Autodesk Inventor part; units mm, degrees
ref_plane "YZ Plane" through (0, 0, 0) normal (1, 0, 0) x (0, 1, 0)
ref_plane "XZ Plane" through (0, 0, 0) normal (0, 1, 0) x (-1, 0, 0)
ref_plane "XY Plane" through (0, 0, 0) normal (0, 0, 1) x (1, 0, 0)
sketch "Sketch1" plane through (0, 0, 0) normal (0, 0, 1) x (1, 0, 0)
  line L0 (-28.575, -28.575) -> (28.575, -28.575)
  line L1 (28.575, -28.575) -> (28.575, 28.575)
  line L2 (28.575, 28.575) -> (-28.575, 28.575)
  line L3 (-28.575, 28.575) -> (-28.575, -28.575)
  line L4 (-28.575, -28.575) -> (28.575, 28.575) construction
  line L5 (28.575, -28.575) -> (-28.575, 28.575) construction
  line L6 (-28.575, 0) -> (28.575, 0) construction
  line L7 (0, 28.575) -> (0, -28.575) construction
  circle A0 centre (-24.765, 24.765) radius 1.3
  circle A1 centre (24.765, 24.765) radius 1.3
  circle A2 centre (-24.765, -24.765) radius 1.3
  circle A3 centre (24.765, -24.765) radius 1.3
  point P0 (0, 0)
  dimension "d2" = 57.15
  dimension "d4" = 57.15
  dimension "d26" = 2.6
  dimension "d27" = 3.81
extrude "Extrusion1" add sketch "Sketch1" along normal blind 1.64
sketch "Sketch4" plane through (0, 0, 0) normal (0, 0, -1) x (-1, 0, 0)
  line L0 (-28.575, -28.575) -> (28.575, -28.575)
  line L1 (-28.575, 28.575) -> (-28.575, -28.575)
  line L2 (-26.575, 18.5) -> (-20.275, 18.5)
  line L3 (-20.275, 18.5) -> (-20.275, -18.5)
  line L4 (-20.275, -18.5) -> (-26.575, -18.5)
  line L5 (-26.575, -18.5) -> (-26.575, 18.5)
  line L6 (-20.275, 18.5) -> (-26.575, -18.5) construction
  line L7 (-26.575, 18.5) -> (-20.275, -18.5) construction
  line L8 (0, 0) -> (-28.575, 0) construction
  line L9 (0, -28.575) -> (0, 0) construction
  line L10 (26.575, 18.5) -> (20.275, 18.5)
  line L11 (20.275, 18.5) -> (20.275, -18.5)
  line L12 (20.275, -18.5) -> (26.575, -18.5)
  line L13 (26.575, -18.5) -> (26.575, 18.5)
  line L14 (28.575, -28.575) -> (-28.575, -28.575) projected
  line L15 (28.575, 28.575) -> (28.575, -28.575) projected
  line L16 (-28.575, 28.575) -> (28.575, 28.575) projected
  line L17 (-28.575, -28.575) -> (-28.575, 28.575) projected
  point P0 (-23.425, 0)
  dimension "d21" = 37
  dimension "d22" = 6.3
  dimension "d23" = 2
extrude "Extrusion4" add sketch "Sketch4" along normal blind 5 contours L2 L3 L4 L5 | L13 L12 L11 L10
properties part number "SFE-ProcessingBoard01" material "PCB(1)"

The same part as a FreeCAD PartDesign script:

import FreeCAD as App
import Part
import Sketcher

V = App.Vector

doc = App.newDocument("Part")
body = doc.addObject("PartDesign::Body", "Body")

sketch1 = doc.addObject("Sketcher::SketchObject", "Sketch")
body.addObject(sketch1)
sketch1.AttachmentSupport = (doc.XY_Plane, [""])
sketch1.MapMode = "FlatFace"
sketch1.addGeometry([
    Part.LineSegment(V(-28.6, 28.6, 0), V(-28.6, -28.6, 0)),
    Part.LineSegment(V(-28.6, -28.6, 0), V(28.6, -28.6, 0)),
    Part.LineSegment(V(28.6, -28.6, 0), V(28.6, 28.6, 0)),
    Part.LineSegment(V(28.6, 28.6, 0), V(-28.6, 28.6, 0)),
    Part.Circle(V(-24.8, -24.8, 0), V(0, 0, 1), 1.3),
    Part.Circle(V(24.8, -24.8, 0), V(0, 0, 1), 1.3),
    Part.Circle(V(-24.8, 24.8, 0), V(0, 0, 1), 1.3),
    Part.Circle(V(24.8, 24.8, 0), V(0, 0, 1), 1.3),
], False)
sketch1.addConstraint([
    Sketcher.Constraint("Coincident", 0, 2, 1, 1),
    Sketcher.Constraint("Coincident", 1, 2, 2, 1),
    Sketcher.Constraint("Coincident", 2, 2, 3, 1),
    Sketcher.Constraint("Coincident", 3, 2, 0, 1),
    Sketcher.Constraint("Vertical", 0),
    Sketcher.Constraint("Horizontal", 1),
    Sketcher.Constraint("Vertical", 2),
    Sketcher.Constraint("Horizontal", 3),
    Sketcher.Constraint("Equal", 4, 5),
    Sketcher.Constraint("Equal", 5, 6),
    Sketcher.Constraint("Equal", 6, 7),
    Sketcher.Constraint("Symmetric", 5, 3, 6, 3, -1, 1),
    Sketcher.Constraint("Symmetric", 4, 3, 7, 3, -1, 1),
    Sketcher.Constraint("Symmetric", 0, 2, 2, 2, -1, 1),
    Sketcher.Constraint("Symmetric", 4, 3, 5, 3, -2),
    Sketcher.Constraint("Equal", 3, 0),
    Sketcher.Constraint("Diameter", 4, 2.6),
    Sketcher.Constraint("DistanceX", 1, 1, 1, 2, 57.15),
    Sketcher.Constraint("DistanceX", 0, 2, 4, 3, 3.81),
    Sketcher.Constraint("DistanceY", 0, 2, 4, 3, 3.81),
])
pad1 = doc.addObject("PartDesign::Pad", "Pad")
body.addObject(pad1)
pad1.Profile = sketch1
pad1.Length = 1.64

sketch2 = doc.addObject("Sketcher::SketchObject", "Sketch001")
body.addObject(sketch2)
sketch2.AttachmentSupport = (doc.XY_Plane, [""])
sketch2.MapMode = "FlatFace"
sketch2.addGeometry([
    Part.LineSegment(V(20, 18, 0), V(27, 18, 0)),
    Part.LineSegment(V(27, 18, 0), V(27, -18, 0)),
    Part.LineSegment(V(27, -18, 0), V(20, -18, 0)),
    Part.LineSegment(V(20, -18, 0), V(20, 18, 0)),
    Part.LineSegment(V(-27, -18, 0), V(-27, 18, 0)),
    Part.LineSegment(V(-27, 18, 0), V(-20, 18, 0)),
    Part.LineSegment(V(-20, 18, 0), V(-20, -18, 0)),
    Part.LineSegment(V(-20, -18, 0), V(-27, -18, 0)),
], False)
sketch2.addConstraint([
    Sketcher.Constraint("Coincident", 0, 2, 1, 1),
    Sketcher.Constraint("Coincident", 1, 2, 2, 1),
    Sketcher.Constraint("Coincident", 2, 2, 3, 1),
    Sketcher.Constraint("Coincident", 3, 2, 0, 1),
    Sketcher.Constraint("Coincident", 4, 2, 5, 1),
    Sketcher.Constraint("Coincident", 5, 2, 6, 1),
    Sketcher.Constraint("Coincident", 6, 2, 7, 1),
    Sketcher.Constraint("Coincident", 7, 2, 4, 1),
    Sketcher.Constraint("Horizontal", 0),
    Sketcher.Constraint("Vertical", 1),
    Sketcher.Constraint("Horizontal", 2),
    Sketcher.Constraint("Vertical", 3),
    Sketcher.Constraint("Vertical", 4),
    Sketcher.Constraint("Horizontal", 5),
    Sketcher.Constraint("Vertical", 6),
    Sketcher.Constraint("Horizontal", 7),
    Sketcher.Constraint("Symmetric", 1, 2, 4, 2, -1, 1),
    Sketcher.Constraint("Symmetric", 3, 2, 6, 2, -1, 1),
    Sketcher.Constraint("Horizontal", 3, 2, 4, 2),
    Sketcher.Constraint("DistanceY", 1, 2, 1, 1, 37.0),
    Sketcher.Constraint("DistanceX", 0, 1, 0, 2, 6.3),
    Sketcher.Constraint("DistanceX", 4, 2, 3, 2, 46.85),
])
pad2 = doc.addObject("PartDesign::Pad", "Pad001")
body.addObject(pad2)
pad2.Profile = sketch2
pad2.Length = 5
pad2.Reversed = True

doc.recompute()
